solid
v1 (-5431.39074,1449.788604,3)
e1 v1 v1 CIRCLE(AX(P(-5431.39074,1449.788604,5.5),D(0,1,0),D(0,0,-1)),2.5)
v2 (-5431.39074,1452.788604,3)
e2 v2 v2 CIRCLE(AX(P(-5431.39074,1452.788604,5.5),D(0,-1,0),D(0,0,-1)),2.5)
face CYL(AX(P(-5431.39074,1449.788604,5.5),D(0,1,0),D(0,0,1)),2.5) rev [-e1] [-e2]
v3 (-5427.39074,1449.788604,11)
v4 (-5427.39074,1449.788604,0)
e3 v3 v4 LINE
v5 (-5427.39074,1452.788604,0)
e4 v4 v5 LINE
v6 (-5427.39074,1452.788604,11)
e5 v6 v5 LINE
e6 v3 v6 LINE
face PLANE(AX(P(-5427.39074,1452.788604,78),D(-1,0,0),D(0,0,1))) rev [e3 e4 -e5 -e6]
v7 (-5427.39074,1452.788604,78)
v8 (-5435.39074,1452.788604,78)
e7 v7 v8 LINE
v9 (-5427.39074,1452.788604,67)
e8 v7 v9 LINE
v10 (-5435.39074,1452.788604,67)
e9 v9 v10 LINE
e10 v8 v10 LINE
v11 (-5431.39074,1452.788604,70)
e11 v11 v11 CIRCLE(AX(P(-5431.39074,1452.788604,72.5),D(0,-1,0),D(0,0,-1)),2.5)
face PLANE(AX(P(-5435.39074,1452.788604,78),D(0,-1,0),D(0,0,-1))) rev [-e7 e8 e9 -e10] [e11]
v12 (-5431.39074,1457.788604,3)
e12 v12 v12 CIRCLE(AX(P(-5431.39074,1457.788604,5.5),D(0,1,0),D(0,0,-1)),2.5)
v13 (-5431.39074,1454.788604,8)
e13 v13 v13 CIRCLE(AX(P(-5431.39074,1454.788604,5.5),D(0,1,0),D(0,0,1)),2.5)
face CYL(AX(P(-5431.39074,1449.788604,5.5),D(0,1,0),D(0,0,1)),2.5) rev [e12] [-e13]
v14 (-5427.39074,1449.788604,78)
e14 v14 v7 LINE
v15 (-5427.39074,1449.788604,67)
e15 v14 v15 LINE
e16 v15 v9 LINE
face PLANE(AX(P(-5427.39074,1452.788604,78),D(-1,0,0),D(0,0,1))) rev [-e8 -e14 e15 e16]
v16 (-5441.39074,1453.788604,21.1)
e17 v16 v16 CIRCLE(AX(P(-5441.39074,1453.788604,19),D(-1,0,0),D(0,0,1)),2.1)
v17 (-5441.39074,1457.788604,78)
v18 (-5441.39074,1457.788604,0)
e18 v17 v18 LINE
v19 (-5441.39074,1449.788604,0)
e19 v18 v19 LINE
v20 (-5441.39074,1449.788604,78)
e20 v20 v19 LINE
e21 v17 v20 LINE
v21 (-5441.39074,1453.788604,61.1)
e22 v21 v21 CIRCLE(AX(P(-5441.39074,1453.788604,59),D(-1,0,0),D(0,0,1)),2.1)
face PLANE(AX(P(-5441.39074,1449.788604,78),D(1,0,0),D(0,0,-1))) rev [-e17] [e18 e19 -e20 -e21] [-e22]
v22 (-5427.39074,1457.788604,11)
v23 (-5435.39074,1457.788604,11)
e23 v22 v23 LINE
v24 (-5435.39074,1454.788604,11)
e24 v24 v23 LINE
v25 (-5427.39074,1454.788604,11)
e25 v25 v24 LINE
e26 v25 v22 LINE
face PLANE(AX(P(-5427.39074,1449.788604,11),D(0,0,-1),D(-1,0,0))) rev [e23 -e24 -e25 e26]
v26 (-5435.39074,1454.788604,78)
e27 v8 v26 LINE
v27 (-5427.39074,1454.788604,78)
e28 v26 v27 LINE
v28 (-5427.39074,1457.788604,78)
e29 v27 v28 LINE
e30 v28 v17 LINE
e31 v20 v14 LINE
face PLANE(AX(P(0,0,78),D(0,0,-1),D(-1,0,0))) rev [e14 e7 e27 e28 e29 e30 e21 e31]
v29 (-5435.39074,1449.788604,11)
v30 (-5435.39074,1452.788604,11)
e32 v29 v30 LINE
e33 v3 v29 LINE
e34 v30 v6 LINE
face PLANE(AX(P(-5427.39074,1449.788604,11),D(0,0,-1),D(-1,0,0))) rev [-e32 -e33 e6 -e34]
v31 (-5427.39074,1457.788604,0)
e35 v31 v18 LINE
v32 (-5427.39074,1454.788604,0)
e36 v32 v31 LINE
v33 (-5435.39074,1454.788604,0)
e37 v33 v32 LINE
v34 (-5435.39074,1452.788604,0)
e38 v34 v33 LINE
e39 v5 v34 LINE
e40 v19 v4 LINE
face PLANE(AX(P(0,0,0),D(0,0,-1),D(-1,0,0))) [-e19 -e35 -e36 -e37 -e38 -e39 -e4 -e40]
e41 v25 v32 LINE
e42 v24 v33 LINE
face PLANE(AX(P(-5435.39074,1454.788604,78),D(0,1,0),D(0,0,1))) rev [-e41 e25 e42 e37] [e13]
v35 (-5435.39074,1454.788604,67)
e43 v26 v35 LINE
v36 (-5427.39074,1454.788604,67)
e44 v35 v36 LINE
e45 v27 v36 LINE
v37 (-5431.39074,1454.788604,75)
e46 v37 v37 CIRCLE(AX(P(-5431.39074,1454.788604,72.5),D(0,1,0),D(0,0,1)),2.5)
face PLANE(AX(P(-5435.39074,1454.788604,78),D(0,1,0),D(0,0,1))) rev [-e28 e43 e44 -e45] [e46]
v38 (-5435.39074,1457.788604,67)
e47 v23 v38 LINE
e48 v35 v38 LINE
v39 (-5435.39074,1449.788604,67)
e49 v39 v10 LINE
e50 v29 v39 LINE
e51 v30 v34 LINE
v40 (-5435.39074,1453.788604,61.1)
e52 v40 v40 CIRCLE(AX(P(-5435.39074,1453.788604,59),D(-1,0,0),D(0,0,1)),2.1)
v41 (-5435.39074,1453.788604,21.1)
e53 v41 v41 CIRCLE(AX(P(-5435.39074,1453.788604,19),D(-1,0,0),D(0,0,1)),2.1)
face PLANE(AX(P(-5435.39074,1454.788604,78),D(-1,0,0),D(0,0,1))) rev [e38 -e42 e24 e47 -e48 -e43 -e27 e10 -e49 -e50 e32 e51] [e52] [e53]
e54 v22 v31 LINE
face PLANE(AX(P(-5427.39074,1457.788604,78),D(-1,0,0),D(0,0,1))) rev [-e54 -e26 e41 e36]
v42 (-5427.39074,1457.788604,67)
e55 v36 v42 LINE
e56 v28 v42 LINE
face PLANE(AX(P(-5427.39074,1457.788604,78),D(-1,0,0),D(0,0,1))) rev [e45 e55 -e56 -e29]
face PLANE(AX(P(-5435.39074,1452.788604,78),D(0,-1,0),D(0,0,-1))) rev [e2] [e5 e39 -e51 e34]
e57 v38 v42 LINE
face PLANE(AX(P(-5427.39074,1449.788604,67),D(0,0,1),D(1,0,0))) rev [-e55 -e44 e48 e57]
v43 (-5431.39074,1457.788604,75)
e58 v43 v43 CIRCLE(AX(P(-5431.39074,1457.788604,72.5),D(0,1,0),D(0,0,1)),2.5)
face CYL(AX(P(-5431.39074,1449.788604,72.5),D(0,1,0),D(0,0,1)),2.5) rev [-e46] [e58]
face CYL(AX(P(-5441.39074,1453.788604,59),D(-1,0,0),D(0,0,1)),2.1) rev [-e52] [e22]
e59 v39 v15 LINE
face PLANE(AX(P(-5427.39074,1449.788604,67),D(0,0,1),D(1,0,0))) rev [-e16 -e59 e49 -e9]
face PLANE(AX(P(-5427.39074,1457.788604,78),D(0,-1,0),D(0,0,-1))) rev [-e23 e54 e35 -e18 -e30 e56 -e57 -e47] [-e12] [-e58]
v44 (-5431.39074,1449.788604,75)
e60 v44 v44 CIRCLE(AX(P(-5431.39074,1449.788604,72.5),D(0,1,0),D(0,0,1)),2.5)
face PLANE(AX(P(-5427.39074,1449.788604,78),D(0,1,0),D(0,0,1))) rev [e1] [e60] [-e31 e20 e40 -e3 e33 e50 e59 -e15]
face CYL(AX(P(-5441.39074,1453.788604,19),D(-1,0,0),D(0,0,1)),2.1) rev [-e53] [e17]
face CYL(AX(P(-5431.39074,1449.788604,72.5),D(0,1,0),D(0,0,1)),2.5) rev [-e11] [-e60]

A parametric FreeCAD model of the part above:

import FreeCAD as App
import Part
import Sketcher
Q = App.Units.Quantity


def add_polygon(sketch, points):
    """Adds a closed chain of lines whose ends are joined by coincident constraints."""
    first, n = sketch.GeometryCount, len(points)
    for a, b in zip(points, points[1:] + points[:1]):
        sketch.addGeometry(Part.LineSegment(App.Vector(*a, 0), App.Vector(*b, 0)), False)
    for i in range(n):
        sketch.addConstraint(Sketcher.Constraint("Coincident", first + i, 2, first + (i + 1) % n, 1))

doc = App.newDocument("Part")
body = doc.addObject("PartDesign::Body", "Body")

# Sketch on XY plane
sketch1 = doc.addObject("Sketcher::SketchObject", "Sketch")
body.addObject(sketch1)
sketch1.AttachmentSupport = (doc.XY_Plane, [""])
sketch1.MapMode = "FlatFace"
add_polygon(sketch1, [(-5441.39074, 1457.788604), (-5441.39074, 1449.788604), (-5427.39074, 1449.788604), (-5427.39074, 1452.788604), (-5435.39074, 1452.788604), (-5435.39074, 1454.788604), (-5427.39074, 1454.788604), (-5427.39074, 1457.788604)])  # lines 0-7
sketch1.addConstraint([
    Sketcher.Constraint("Vertical", 0),
    Sketcher.Constraint("Horizontal", 1),
    Sketcher.Constraint("Vertical", 2),
    Sketcher.Constraint("Horizontal", 3),
    Sketcher.Constraint("Vertical", 4),
    Sketcher.Constraint("Horizontal", 5),
    Sketcher.Constraint("Vertical", 6),
    Sketcher.Constraint("Horizontal", 7),
    Sketcher.Constraint("Vertical", 2, 2, 5, 2),
    Sketcher.Constraint("Equal", 5, 0),
    Sketcher.Constraint("Equal", 2, 6),
    Sketcher.Constraint("DistanceX", 1, 1, 1, 2, Q("14 mm")),
    Sketcher.Constraint("DistanceX", 3, 2, 3, 1, Q("8 mm")),
    Sketcher.Constraint("DistanceY", 2, 1, 2, 2, Q("3 mm")),
    Sketcher.Constraint("DistanceX", 0, 2, -1, 1, Q("5441.39074 mm")),
    Sketcher.Constraint("DistanceY", -1, 1, 0, 2, Q("1449.788604 mm")),
])
pad1 = doc.addObject("PartDesign::Pad", "Pad")
body.addObject(pad1)
pad1.Profile = sketch1
pad1.Length = 78

# Sketch on XZ plane
sketch2 = doc.addObject("Sketcher::SketchObject", "Sketch001")
body.addObject(sketch2)
sketch2.AttachmentSupport = (doc.XZ_Plane, [""])
sketch2.MapMode = "FlatFace"
sketch2.AttachmentOffset = App.Placement(App.Vector(0, 0, -1457.788604), App.Rotation())
add_polygon(sketch2, [(-5435.39074, 11), (-5435.39074, 67), (-5427.39074, 67), (-5427.39074, 11)])  # lines 0-3
sketch2.addConstraint([
    Sketcher.Constraint("Vertical", 0),
    Sketcher.Constraint("Horizontal", 1),
    Sketcher.Constraint("Vertical", 2),
    Sketcher.Constraint("Horizontal", 3),
    Sketcher.Constraint("DistanceX", 1, 1, 1, 2, Q("8 mm")),
    Sketcher.Constraint("DistanceY", 0, 1, 0, 2, Q("56 mm")),
    Sketcher.Constraint("DistanceY", -1, 1, 0, 2, Q("67 mm")),
    Sketcher.Constraint("DistanceX", 0, 2, -1, 1, Q("5435.39074 mm")),
])
pocket1 = doc.addObject("PartDesign::Pocket", "Pocket")
body.addObject(pocket1)
pocket1.Profile = sketch2
pocket1.Type = "ThroughAll"
pocket1.Reversed = True

# Sketch on XZ plane
sketch3 = doc.addObject("Sketcher::SketchObject", "Sketch002")
body.addObject(sketch3)
sketch3.AttachmentSupport = (doc.XZ_Plane, [""])
sketch3.MapMode = "FlatFace"
sketch3.AttachmentOffset = App.Placement(App.Vector(0, 0, -1457.788604), App.Rotation())
sketch3.addGeometry([
    Part.Circle(App.Vector(-5431.39074, 72.5, 0), App.Vector(0, 0, 1), 2.5),
    Part.Circle(App.Vector(-5431.39074, 5.5, 0), App.Vector(0, 0, 1), 2.5),
], False)
sketch3.addConstraint([
    Sketcher.Constraint("Equal", 0, 1),
    Sketcher.Constraint("Vertical", 0, 3, 1, 3),
    Sketcher.Constraint("Diameter", 0, Q("5 mm")),
    Sketcher.Constraint("DistanceY", 1, 3, 0, 3, Q("67 mm")),
    Sketcher.Constraint("DistanceY", -1, 1, 0, 3, Q("72.5 mm")),
    Sketcher.Constraint("DistanceX", 0, 3, -1, 1, Q("5431.39074 mm")),
])
pocket2 = doc.addObject("PartDesign::Pocket", "Pocket001")
body.addObject(pocket2)
pocket2.Profile = sketch3
pocket2.Type = "ThroughAll"
pocket2.Reversed = True

# Sketch on YZ plane
sketch4 = doc.addObject("Sketcher::SketchObject", "Sketch003")
body.addObject(sketch4)
sketch4.AttachmentSupport = (doc.YZ_Plane, [""])
sketch4.MapMode = "FlatFace"
sketch4.AttachmentOffset = App.Placement(App.Vector(0, 0, -5441.39074), App.Rotation())
sketch4.addGeometry([
    Part.Circle(App.Vector(1453.788604, 59, 0), App.Vector(0, 0, 1), 2.1),
    Part.Circle(App.Vector(1453.788604, 19, 0), App.Vector(0, 0, 1), 2.1),
], False)
sketch4.addConstraint([
    Sketcher.Constraint("Equal", 0, 1),
    Sketcher.Constraint("Vertical", 0, 3, 1, 3),
    Sketcher.Constraint("Diameter", 0, Q("4.2 mm")),
    Sketcher.Constraint("DistanceY", -1, 1, 0, 3, Q("59 mm")),
    Sketcher.Constraint("DistanceY", -1, 1, 1, 3, Q("19 mm")),
    Sketcher.Constraint("DistanceX", -1, 1, 0, 3, Q("1453.788604 mm")),
])
doc.recompute()
hole = doc.addObject("PartDesign::Hole", "Hole")
body.addObject(hole)
hole.Profile = sketch4
hole.ThreadType = "None"
hole.Diameter = 4.2
hole.DepthType = "ThroughAll"
hole.Reversed = True

doc.recompute()
